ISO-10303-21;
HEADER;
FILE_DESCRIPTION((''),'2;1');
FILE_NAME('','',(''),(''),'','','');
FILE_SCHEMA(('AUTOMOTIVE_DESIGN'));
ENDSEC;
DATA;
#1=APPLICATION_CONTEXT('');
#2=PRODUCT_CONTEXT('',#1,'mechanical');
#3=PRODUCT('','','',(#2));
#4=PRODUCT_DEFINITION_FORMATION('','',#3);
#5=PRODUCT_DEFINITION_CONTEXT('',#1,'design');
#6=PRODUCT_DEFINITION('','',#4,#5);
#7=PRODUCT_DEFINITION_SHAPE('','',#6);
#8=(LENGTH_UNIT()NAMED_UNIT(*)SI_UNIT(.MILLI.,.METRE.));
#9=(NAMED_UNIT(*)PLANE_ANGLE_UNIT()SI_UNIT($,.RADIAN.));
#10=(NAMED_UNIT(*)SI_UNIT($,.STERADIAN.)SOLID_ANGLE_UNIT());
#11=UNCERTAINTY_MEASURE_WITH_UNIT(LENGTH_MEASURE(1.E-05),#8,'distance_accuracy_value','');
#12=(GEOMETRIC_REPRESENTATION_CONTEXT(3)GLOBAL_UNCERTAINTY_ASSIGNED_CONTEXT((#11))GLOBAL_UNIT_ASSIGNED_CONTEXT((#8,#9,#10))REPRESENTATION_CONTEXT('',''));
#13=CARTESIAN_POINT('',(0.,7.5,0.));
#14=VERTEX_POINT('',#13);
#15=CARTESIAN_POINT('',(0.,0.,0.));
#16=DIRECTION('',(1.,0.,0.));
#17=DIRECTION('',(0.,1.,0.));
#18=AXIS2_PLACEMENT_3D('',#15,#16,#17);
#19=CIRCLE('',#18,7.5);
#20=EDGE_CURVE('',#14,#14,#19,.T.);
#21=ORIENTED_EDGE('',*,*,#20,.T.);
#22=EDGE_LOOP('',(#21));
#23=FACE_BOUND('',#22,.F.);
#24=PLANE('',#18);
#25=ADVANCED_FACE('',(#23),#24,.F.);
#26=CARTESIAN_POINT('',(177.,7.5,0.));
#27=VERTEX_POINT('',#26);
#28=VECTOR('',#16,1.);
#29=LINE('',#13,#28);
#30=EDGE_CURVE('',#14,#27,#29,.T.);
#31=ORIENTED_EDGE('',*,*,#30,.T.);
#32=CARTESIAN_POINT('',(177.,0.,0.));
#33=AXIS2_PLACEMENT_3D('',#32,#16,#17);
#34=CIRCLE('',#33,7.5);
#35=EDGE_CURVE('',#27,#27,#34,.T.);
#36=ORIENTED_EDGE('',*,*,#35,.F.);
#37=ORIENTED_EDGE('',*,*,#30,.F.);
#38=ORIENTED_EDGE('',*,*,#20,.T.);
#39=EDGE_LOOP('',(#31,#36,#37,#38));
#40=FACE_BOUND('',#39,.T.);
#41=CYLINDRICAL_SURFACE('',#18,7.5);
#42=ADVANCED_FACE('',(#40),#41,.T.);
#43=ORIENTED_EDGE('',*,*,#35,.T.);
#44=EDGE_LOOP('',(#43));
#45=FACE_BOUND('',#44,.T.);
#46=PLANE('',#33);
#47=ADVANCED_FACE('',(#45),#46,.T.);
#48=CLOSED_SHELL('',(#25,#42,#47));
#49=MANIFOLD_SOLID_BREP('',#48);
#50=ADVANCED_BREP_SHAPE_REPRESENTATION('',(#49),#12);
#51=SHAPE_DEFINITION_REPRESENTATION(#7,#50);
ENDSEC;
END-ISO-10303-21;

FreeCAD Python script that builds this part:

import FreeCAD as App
import Part
import Sketcher

V = App.Vector

doc = App.newDocument("Part")
body = doc.addObject("PartDesign::Body", "Body")

# Sketch on XY plane
sketch1 = doc.addObject("Sketcher::SketchObject", "Sketch")
body.addObject(sketch1)
sketch1.AttachmentSupport = (doc.XY_Plane, [""])
sketch1.MapMode = "FlatFace"
sketch1.addGeometry([
    Part.LineSegment(V(0, 8, 0), V(0, 0, 0)),
    Part.LineSegment(V(0, 0, 0), V(177, 0, 0)),
    Part.LineSegment(V(177, 0, 0), V(177, 8, 0)),
    Part.LineSegment(V(177, 8, 0), V(0, 8, 0)),
], False)
sketch1.addConstraint([
    Sketcher.Constraint("Coincident", 0, 2, 1, 1),
    Sketcher.Constraint("Coincident", 1, 2, 2, 1),
    Sketcher.Constraint("Coincident", 2, 2, 3, 1),
    Sketcher.Constraint("Coincident", 3, 2, 0, 1),
    Sketcher.Constraint("Vertical", 0),
    Sketcher.Constraint("Horizontal", 1),
    Sketcher.Constraint("Vertical", 2),
    Sketcher.Constraint("Horizontal", 3),
    Sketcher.Constraint("Coincident", 0, 2, -1, 1),
    Sketcher.Constraint("DistanceX", 1, 1, 1, 2, 177.0),
    Sketcher.Constraint("DistanceY", 0, 2, 0, 1, 7.5),
])
revolution = doc.addObject("PartDesign::Revolution", "Revolution")
body.addObject(revolution)
revolution.Profile = sketch1
revolution.ReferenceAxis = (sketch1, ["H_Axis"])
revolution.Angle = 360

doc.recompute()
